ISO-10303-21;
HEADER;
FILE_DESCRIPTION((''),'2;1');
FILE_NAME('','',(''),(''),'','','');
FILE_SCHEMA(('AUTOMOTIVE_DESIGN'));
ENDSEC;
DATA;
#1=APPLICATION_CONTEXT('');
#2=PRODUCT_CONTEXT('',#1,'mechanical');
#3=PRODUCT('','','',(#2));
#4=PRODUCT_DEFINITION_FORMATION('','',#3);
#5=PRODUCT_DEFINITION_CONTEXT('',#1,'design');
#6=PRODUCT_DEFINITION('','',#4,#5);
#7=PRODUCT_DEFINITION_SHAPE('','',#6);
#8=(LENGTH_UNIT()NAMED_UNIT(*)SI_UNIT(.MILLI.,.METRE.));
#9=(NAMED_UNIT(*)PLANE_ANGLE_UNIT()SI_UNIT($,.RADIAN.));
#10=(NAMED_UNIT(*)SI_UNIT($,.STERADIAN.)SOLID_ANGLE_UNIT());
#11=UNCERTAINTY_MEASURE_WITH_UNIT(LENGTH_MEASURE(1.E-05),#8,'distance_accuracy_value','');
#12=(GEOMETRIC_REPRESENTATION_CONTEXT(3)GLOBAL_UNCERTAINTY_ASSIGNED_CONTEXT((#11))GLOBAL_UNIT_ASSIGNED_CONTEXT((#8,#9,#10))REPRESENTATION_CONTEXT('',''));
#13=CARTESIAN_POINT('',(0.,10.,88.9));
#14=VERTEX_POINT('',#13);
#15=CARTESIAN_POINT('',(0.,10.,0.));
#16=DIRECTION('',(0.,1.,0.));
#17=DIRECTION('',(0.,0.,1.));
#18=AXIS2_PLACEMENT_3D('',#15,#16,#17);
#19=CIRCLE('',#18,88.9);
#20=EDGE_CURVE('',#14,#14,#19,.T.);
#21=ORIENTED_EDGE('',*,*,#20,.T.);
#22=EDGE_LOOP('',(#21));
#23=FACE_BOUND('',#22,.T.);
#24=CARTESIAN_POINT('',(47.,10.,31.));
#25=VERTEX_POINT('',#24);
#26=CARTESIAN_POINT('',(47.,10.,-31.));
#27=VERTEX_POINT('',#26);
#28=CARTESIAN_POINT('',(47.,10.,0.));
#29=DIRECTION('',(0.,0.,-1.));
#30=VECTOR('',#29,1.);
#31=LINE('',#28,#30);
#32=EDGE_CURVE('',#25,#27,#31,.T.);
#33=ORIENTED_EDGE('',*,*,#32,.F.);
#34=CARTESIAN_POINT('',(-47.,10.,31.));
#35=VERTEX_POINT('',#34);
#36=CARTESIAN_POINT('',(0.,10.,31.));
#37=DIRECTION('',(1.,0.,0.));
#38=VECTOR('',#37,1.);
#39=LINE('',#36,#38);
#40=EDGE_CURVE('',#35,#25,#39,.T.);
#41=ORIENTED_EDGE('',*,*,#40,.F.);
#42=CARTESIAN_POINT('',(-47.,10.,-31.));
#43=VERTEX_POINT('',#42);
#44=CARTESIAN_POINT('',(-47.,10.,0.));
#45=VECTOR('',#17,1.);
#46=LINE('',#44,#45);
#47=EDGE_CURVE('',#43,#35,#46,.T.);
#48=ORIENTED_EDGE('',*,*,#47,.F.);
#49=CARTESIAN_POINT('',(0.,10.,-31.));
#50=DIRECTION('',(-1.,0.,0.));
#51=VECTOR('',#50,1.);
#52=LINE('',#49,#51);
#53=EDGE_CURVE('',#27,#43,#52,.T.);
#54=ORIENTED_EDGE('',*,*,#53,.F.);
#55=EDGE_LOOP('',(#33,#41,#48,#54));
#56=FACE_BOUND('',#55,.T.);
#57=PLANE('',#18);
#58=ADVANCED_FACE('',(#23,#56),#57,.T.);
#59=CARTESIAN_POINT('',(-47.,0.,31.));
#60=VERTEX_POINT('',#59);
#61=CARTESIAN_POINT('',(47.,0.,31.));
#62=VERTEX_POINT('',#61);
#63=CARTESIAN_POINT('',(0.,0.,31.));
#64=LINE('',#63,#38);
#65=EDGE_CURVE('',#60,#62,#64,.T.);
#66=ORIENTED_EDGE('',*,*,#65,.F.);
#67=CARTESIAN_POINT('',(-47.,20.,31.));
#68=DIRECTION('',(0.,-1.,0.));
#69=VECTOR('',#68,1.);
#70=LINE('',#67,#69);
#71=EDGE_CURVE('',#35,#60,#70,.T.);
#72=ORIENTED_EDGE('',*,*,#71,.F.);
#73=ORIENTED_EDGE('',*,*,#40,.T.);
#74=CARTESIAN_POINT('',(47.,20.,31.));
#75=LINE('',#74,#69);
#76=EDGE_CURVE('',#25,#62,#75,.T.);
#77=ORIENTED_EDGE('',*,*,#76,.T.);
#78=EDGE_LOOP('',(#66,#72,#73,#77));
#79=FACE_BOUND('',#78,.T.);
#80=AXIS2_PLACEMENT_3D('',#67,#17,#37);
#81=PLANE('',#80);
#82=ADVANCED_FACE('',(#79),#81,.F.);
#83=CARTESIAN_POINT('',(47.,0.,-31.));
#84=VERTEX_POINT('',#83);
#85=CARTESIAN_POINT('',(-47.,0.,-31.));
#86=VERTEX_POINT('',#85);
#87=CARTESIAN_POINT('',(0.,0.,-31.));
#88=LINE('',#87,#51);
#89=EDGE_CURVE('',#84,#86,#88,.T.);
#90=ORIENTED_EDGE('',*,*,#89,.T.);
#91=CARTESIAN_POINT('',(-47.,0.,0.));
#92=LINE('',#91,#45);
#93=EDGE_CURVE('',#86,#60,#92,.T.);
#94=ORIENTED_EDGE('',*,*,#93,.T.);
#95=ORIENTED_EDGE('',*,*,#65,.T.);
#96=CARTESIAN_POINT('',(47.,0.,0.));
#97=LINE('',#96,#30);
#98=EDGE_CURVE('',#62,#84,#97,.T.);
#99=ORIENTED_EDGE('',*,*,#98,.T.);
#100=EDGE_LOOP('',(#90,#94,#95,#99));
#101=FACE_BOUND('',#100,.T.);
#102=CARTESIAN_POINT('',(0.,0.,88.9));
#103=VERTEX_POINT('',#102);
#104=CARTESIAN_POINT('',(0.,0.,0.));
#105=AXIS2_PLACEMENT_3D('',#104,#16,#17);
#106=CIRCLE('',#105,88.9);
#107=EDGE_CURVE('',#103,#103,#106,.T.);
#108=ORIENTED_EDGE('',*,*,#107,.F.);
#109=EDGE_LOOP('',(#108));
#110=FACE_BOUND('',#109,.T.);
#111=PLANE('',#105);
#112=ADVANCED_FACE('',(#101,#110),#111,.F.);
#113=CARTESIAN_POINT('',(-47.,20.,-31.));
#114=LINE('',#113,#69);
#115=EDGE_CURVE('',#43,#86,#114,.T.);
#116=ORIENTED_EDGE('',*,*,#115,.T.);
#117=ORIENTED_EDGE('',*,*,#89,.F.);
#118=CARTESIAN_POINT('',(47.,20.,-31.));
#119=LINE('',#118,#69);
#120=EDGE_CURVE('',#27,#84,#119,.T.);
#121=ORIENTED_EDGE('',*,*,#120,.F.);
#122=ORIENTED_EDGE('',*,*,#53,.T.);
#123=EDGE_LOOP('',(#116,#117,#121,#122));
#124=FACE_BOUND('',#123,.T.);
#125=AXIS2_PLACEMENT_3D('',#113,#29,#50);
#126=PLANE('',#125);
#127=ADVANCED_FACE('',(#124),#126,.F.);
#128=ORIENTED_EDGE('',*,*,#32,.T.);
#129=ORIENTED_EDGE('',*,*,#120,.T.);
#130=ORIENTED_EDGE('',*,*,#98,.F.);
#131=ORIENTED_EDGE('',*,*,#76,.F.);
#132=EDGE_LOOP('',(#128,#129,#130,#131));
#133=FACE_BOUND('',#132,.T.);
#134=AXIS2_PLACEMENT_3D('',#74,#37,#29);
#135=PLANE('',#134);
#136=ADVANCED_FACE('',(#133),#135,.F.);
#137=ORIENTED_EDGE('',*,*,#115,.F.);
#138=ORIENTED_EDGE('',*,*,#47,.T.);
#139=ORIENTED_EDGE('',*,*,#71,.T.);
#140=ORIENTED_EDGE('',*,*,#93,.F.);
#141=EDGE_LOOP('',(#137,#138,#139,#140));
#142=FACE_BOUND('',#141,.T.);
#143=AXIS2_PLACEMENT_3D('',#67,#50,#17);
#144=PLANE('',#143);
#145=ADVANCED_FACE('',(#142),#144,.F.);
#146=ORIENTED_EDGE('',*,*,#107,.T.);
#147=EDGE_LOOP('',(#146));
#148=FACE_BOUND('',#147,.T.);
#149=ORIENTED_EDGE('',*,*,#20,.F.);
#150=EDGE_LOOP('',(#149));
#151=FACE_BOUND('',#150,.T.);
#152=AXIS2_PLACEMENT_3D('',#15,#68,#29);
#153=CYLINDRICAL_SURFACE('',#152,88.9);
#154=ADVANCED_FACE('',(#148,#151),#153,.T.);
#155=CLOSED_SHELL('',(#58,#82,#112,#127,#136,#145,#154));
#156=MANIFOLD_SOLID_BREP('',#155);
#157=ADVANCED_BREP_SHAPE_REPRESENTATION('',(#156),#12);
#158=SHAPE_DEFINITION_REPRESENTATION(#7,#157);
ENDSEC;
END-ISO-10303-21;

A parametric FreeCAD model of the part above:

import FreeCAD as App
import Part
import Sketcher

V = App.Vector
Q = App.Units.Quantity


def add_polygon(sketch, points):
    """Adds a closed chain of lines whose ends are joined by coincident constraints."""
    first, n = sketch.GeometryCount, len(points)
    for a, b in zip(points, points[1:] + points[:1]):
        sketch.addGeometry(Part.LineSegment(App.Vector(*a, 0), App.Vector(*b, 0)), False)
    for i in range(n):
        sketch.addConstraint(Sketcher.Constraint("Coincident", first + i, 2, first + (i + 1) % n, 1))

doc = App.newDocument("Part")
params = doc.addObject("Spreadsheet::Sheet", "Params")
for row, (alias, value) in enumerate([
    ("sketch1_diameter", "177.8 mm"),
    ("pad1_length", "10 mm"),
    ("sketch2_width", "94 mm"),
    ("sketch2_height", "62 mm"),
    ("pocket1_length", "30 mm"),
], start=1):
    params.set(f"A{row}", alias)
    params.set(f"B{row}", "=" + value)
    params.setAlias(f"B{row}", alias)

body = doc.addObject("PartDesign::Body", "Body")

sketch1 = body.newObject("Sketcher::SketchObject", "Sketch")
sketch1.AttachmentSupport = (doc.getObject("XZ_Plane"), [""])
sketch1.MapMode = "FlatFace"
sketch1.addGeometry(Part.Circle(V(0, 0, 0), V(0, 0, 1), 89), False)
sketch1.addConstraint(Sketcher.Constraint("Coincident", 0, 3, -1, 1))
sketch1.addConstraint(Sketcher.Constraint("Diameter", 0, Q("177.8 mm")))
sketch1.setExpression("Constraints[1]", "Params.sketch1_diameter")
pad1 = body.newObject("PartDesign::Pad", "Pad")
pad1.Profile = sketch1
pad1.setExpression("Length", "Params.pad1_length")
pad1.Reversed = True

sketch2 = body.newObject("Sketcher::SketchObject", "Sketch001")
sketch2.AttachmentSupport = (doc.getObject("XZ_Plane"), [""])
sketch2.MapMode = "FlatFace"
sketch2.AttachmentOffset = App.Placement(V(0, 0, 10), App.Rotation())
add_polygon(sketch2, [(-47, 31), (-47, -31), (47, -31), (47, 31)])
sketch2.addConstraint(Sketcher.Constraint("Vertical", 0))
sketch2.addConstraint(Sketcher.Constraint("Horizontal", 1))
sketch2.addConstraint(Sketcher.Constraint("Vertical", 2))
sketch2.addConstraint(Sketcher.Constraint("Horizontal", 3))
sketch2.addConstraint(Sketcher.Constraint("Symmetric", 0, 2, 2, 2, -1, 1))
sketch2.addConstraint(Sketcher.Constraint("DistanceX", 1, 1, 1, 2, Q("94 mm")))
sketch2.addConstraint(Sketcher.Constraint("DistanceY", 0, 2, 0, 1, Q("62 mm")))
sketch2.setExpression("Constraints[9]", "Params.sketch2_width")
sketch2.setExpression("Constraints[10]", "Params.sketch2_height")
pocket1 = body.newObject("PartDesign::Pocket", "Pocket")
pocket1.Profile = sketch2
pocket1.setExpression("Length", "Params.pocket1_length")

doc.recompute()
